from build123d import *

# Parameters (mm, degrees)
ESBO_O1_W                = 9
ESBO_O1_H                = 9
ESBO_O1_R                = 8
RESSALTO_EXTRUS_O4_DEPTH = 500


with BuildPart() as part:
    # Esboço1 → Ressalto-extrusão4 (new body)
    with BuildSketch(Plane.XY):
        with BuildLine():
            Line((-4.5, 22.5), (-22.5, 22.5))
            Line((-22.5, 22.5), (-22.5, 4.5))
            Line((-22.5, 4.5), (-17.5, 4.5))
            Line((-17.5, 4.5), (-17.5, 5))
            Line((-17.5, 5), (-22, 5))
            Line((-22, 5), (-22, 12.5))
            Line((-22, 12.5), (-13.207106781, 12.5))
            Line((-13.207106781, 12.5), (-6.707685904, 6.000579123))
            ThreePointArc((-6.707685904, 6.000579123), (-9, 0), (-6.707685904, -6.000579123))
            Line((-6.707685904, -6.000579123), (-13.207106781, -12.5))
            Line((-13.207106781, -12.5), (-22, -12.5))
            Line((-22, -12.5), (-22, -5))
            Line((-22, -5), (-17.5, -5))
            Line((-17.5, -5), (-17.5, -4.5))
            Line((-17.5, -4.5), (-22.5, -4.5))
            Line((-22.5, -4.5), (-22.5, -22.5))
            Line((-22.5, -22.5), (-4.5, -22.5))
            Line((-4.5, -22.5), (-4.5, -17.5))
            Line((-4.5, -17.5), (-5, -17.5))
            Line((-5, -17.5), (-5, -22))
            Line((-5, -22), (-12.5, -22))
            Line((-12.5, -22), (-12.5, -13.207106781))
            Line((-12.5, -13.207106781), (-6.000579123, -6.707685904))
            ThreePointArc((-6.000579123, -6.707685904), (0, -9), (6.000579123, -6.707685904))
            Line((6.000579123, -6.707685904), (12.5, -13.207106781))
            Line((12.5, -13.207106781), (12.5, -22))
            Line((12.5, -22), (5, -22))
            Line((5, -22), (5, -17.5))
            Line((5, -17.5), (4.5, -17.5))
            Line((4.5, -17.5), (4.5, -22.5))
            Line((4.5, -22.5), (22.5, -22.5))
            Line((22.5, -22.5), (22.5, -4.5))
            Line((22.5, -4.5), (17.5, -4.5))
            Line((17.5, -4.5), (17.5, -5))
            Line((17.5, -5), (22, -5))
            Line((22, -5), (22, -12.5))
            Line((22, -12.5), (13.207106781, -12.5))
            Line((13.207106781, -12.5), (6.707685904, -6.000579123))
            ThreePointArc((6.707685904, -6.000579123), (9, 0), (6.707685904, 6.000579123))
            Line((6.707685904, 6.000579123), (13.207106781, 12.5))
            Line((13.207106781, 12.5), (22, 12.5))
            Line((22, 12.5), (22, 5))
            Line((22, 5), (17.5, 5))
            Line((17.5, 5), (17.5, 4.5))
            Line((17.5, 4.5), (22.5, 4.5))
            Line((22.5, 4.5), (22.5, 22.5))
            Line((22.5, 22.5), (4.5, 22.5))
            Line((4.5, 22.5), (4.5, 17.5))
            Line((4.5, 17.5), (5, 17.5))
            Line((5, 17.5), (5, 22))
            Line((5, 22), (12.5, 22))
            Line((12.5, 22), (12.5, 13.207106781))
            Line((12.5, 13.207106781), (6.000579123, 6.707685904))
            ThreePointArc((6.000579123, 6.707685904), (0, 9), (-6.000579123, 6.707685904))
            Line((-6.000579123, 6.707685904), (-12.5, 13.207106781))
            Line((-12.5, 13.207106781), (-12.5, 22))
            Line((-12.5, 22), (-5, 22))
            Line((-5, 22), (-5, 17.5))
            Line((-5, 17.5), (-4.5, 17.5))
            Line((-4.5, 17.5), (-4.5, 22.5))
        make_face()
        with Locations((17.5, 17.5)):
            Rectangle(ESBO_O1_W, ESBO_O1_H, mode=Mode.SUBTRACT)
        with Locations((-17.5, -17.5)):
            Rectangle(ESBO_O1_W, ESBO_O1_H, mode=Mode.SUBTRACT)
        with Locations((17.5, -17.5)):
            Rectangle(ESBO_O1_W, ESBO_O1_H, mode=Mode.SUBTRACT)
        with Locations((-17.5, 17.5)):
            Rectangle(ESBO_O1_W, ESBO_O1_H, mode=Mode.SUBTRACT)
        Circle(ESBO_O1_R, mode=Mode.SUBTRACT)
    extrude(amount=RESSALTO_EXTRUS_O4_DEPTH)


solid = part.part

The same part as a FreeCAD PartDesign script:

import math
import FreeCAD as App
import Part
import Sketcher
from FreeCAD import Vector

doc = App.newDocument("Part")
params = doc.addObject("Spreadsheet::Sheet", "Params")
for row, (alias, value) in enumerate([
    ("sketch1_diameter", "16 mm"),
    ("sketch1_radius", "9 mm"),
    ("sketch1_width", "18 mm"),
    ("sketch1_width2", "5 mm"),
    ("sketch1_width3", "9 mm"),
    ("pad1_length", "500 mm"),
], start=1):
    params.set(f"A{row}", alias)
    params.set(f"B{row}", "=" + value)
    params.setAlias(f"B{row}", alias)

body = doc.addObject("PartDesign::Body", "Body")

# Sketch on XY plane
sketch1 = doc.addObject("Sketcher::SketchObject", "Sketch")
body.addObject(sketch1)
sketch1.AttachmentSupport = (doc.XY_Plane, [""])
sketch1.MapMode = "FlatFace"
sketch1.addGeometry(Part.LineSegment(Vector(-4.5, 22.5, 0), Vector(-22.5, 22.5, 0)), False)
sketch1.addGeometry(Part.LineSegment(Vector(-22.5, 22.5, 0), Vector(-22.5, 4.5, 0)), False)
sketch1.addGeometry(Part.LineSegment(Vector(-22.5, 4.5, 0), Vector(-17.5, 4.5, 0)), False)
sketch1.addGeometry(Part.LineSegment(Vector(-17.5, 4.5, 0), Vector(-17.5, 5, 0)), False)
sketch1.addGeometry(Part.LineSegment(Vector(-17.5, 5, 0), Vector(-22, 5, 0)), False)
sketch1.addGeometry(Part.LineSegment(Vector(-22, 5, 0), Vector(-22, 12.5, 0)), False)
sketch1.addGeometry(Part.LineSegment(Vector(-22, 12.5, 0), Vector(-13.2, 12.5, 0)), False)
sketch1.addGeometry(Part.LineSegment(Vector(-13.2, 12.5, 0), Vector(-6.7, 6, 0)), False)
sketch1.addGeometry(Part.ArcOfCircle(Part.Circle(Vector(0, 0, 0), Vector(0, 0, 1), 9), math.radians(138), math.radians(222)), False)
sketch1.addGeometry(Part.LineSegment(Vector(-6.7, -6, 0), Vector(-13.2, -12.5, 0)), False)
sketch1.addGeometry(Part.LineSegment(Vector(-13.2, -12.5, 0), Vector(-22, -12.5, 0)), False)
sketch1.addGeometry(Part.LineSegment(Vector(-22, -12.5, 0), Vector(-22, -5, 0)), False)
sketch1.addGeometry(Part.LineSegment(Vector(-22, -5, 0), Vector(-17.5, -5, 0)), False)
sketch1.addGeometry(Part.LineSegment(Vector(-17.5, -5, 0), Vector(-17.5, -4.5, 0)), False)
sketch1.addGeometry(Part.LineSegment(Vector(-17.5, -4.5, 0), Vector(-22.5, -4.5, 0)), False)
sketch1.addGeometry(Part.LineSegment(Vector(-22.5, -4.5, 0), Vector(-22.5, -22.5, 0)), False)
sketch1.addGeometry(Part.LineSegment(Vector(-22.5, -22.5, 0), Vector(-4.5, -22.5, 0)), False)
sketch1.addGeometry(Part.LineSegment(Vector(-4.5, -22.5, 0), Vector(-4.5, -17.5, 0)), False)
sketch1.addGeometry(Part.LineSegment(Vector(-4.5, -17.5, 0), Vector(-5, -17.5, 0)), False)
sketch1.addGeometry(Part.LineSegment(Vector(-5, -17.5, 0), Vector(-5, -22, 0)), False)
sketch1.addGeometry(Part.LineSegment(Vector(-5, -22, 0), Vector(-12.5, -22, 0)), False)
sketch1.addGeometry(Part.LineSegment(Vector(-12.5, -22, 0), Vector(-12.5, -13.2, 0)), False)
sketch1.addGeometry(Part.LineSegment(Vector(-12.5, -13.2, 0), Vector(-6, -6.7, 0)), False)
sketch1.addGeometry(Part.ArcOfCircle(Part.Circle(Vector(0, 0, 0), Vector(0, 0, 1), 9), math.radians(-132), math.radians(-48)), False)
sketch1.addGeometry(Part.LineSegment(Vector(6, -6.7, 0), Vector(12.5, -13.2, 0)), False)
sketch1.addGeometry(Part.LineSegment(Vector(12.5, -13.2, 0), Vector(12.5, -22, 0)), False)
sketch1.addGeometry(Part.LineSegment(Vector(12.5, -22, 0), Vector(5, -22, 0)), False)
sketch1.addGeometry(Part.LineSegment(Vector(5, -22, 0), Vector(5, -17.5, 0)), False)
sketch1.addGeometry(Part.LineSegment(Vector(5, -17.5, 0), Vector(4.5, -17.5, 0)), False)
sketch1.addGeometry(Part.LineSegment(Vector(4.5, -17.5, 0), Vector(4.5, -22.5, 0)), False)
sketch1.addGeometry(Part.LineSegment(Vector(4.5, -22.5, 0), Vector(22.5, -22.5, 0)), False)
sketch1.addGeometry(Part.LineSegment(Vector(22.5, -22.5, 0), Vector(22.5, -4.5, 0)), False)
sketch1.addGeometry(Part.LineSegment(Vector(22.5, -4.5, 0), Vector(17.5, -4.5, 0)), False)
sketch1.addGeometry(Part.LineSegment(Vector(17.5, -4.5, 0), Vector(17.5, -5, 0)), False)
sketch1.addGeometry(Part.LineSegment(Vector(17.5, -5, 0), Vector(22, -5, 0)), False)
sketch1.addGeometry(Part.LineSegment(Vector(22, -5, 0), Vector(22, -12.5, 0)), False)
sketch1.addGeometry(Part.LineSegment(Vector(22, -12.5, 0), Vector(13.2, -12.5, 0)), False)
sketch1.addGeometry(Part.LineSegment(Vector(13.2, -12.5, 0), Vector(6.7, -6, 0)), False)
sketch1.addGeometry(Part.ArcOfCircle(Part.Circle(Vector(0, 0, 0), Vector(0, 0, 1), 9), math.radians(-42), math.radians(42)), False)
sketch1.addGeometry(Part.LineSegment(Vector(6.7, 6, 0), Vector(13.2, 12.5, 0)), False)
sketch1.addGeometry(Part.LineSegment(Vector(13.2, 12.5, 0), Vector(22, 12.5, 0)), False)
sketch1.addGeometry(Part.LineSegment(Vector(22, 12.5, 0), Vector(22, 5, 0)), False)
sketch1.addGeometry(Part.LineSegment(Vector(22, 5, 0), Vector(17.5, 5, 0)), False)
sketch1.addGeometry(Part.LineSegment(Vector(17.5, 5, 0), Vector(17.5, 4.5, 0)), False)
sketch1.addGeometry(Part.LineSegment(Vector(17.5, 4.5, 0), Vector(22.5, 4.5, 0)), False)
sketch1.addGeometry(Part.LineSegment(Vector(22.5, 4.5, 0), Vector(22.5, 22.5, 0)), False)
sketch1.addGeometry(Part.LineSegment(Vector(22.5, 22.5, 0), Vector(4.5, 22.5, 0)), False)
sketch1.addGeometry(Part.LineSegment(Vector(4.5, 22.5, 0), Vector(4.5, 17.5, 0)), False)
sketch1.addGeometry(Part.LineSegment(Vector(4.5, 17.5, 0), Vector(5, 17.5, 0)), False)
sketch1.addGeometry(Part.LineSegment(Vector(5, 17.5, 0), Vector(5, 22, 0)), False)
sketch1.addGeometry(Part.LineSegment(Vector(5, 22, 0), Vector(12.5, 22, 0)), False)
sketch1.addGeometry(Part.LineSegment(Vector(12.5, 22, 0), Vector(12.5, 13.2, 0)), False)
sketch1.addGeometry(Part.LineSegment(Vector(12.5, 13.2, 0), Vector(6, 6.7, 0)), False)
sketch1.addGeometry(Part.ArcOfCircle(Part.Circle(Vector(0, 0, 0), Vector(0, 0, 1), 9), math.radians(48), math.radians(132)), False)
sketch1.addGeometry(Part.LineSegment(Vector(-6, 6.7, 0), Vector(-12.5, 13.2, 0)), False)
sketch1.addGeometry(Part.LineSegment(Vector(-12.5, 13.2, 0), Vector(-12.5, 22, 0)), False)
sketch1.addGeometry(Part.LineSegment(Vector(-12.5, 22, 0), Vector(-5, 22, 0)), False)
sketch1.addGeometry(Part.LineSegment(Vector(-5, 22, 0), Vector(-5, 17.5, 0)), False)
sketch1.addGeometry(Part.LineSegment(Vector(-5, 17.5, 0), Vector(-4.5, 17.5, 0)), False)
sketch1.addGeometry(Part.LineSegment(Vector(-4.5, 17.5, 0), Vector(-4.5, 22.5, 0)), False)
sketch1.addGeometry(Part.LineSegment(Vector(-13, -22, 0), Vector(-22, -22, 0)), False)
sketch1.addGeometry(Part.LineSegment(Vector(-22, -22, 0), Vector(-22, -13, 0)), False)
sketch1.addGeometry(Part.LineSegment(Vector(-22, -13, 0), Vector(-13, -13, 0)), False)
sketch1.addGeometry(Part.LineSegment(Vector(-13, -13, 0), Vector(-13, -22, 0)), False)
sketch1.addGeometry(Part.LineSegment(Vector(22, -22, 0), Vector(13, -22, 0)), False)
sketch1.addGeometry(Part.LineSegment(Vector(13, -22, 0), Vector(13, -13, 0)), False)
sketch1.addGeometry(Part.LineSegment(Vector(13, -13, 0), Vector(22, -13, 0)), False)
sketch1.addGeometry(Part.LineSegment(Vector(22, -13, 0), Vector(22, -22, 0)), False)
sketch1.addGeometry(Part.LineSegment(Vector(-13, 13, 0), Vector(-22, 13, 0)), False)
sketch1.addGeometry(Part.LineSegment(Vector(-22, 13, 0), Vector(-22, 22, 0)), False)
sketch1.addGeometry(Part.LineSegment(Vector(-22, 22, 0), Vector(-13, 22, 0)), False)
sketch1.addGeometry(Part.LineSegment(Vector(-13, 22, 0), Vector(-13, 13, 0)), False)
sketch1.addGeometry(Part.Circle(Vector(0, 0, 0), Vector(0, 0, 1), 8), False)
sketch1.addGeometry(Part.LineSegment(Vector(22, 13, 0), Vector(13, 13, 0)), False)
sketch1.addGeometry(Part.LineSegment(Vector(13, 13, 0), Vector(13, 22, 0)), False)
sketch1.addGeometry(Part.LineSegment(Vector(13, 22, 0), Vector(22, 22, 0)), False)
sketch1.addGeometry(Part.LineSegment(Vector(22, 22, 0), Vector(22, 13, 0)), False)
sketch1.addConstraint(Sketcher.Constraint("Coincident", 0, 2, 1, 1))
sketch1.addConstraint(Sketcher.Constraint("Coincident", 1, 2, 2, 1))
sketch1.addConstraint(Sketcher.Constraint("Coincident", 2, 2, 3, 1))
sketch1.addConstraint(Sketcher.Constraint("Coincident", 3, 2, 4, 1))
sketch1.addConstraint(Sketcher.Constraint("Coincident", 4, 2, 5, 1))
sketch1.addConstraint(Sketcher.Constraint("Coincident", 5, 2, 6, 1))
sketch1.addConstraint(Sketcher.Constraint("Coincident", 6, 2, 7, 1))
sketch1.addConstraint(Sketcher.Constraint("Coincident", 7, 2, 8, 1))
sketch1.addConstraint(Sketcher.Constraint("Coincident", 8, 2, 9, 1))
sketch1.addConstraint(Sketcher.Constraint("Coincident", 9, 2, 10, 1))
sketch1.addConstraint(Sketcher.Constraint("Coincident", 10, 2, 11, 1))
sketch1.addConstraint(Sketcher.Constraint("Coincident", 11, 2, 12, 1))
sketch1.addConstraint(Sketcher.Constraint("Coincident", 12, 2, 13, 1))
sketch1.addConstraint(Sketcher.Constraint("Coincident", 13, 2, 14, 1))
sketch1.addConstraint(Sketcher.Constraint("Coincident", 14, 2, 15, 1))
sketch1.addConstraint(Sketcher.Constraint("Coincident", 15, 2, 16, 1))
sketch1.addConstraint(Sketcher.Constraint("Coincident", 16, 2, 17, 1))
sketch1.addConstraint(Sketcher.Constraint("Coincident", 17, 2, 18, 1))
sketch1.addConstraint(Sketcher.Constraint("Coincident", 18, 2, 19, 1))
sketch1.addConstraint(Sketcher.Constraint("Coincident", 19, 2, 20, 1))
sketch1.addConstraint(Sketcher.Constraint("Coincident", 20, 2, 21, 1))
sketch1.addConstraint(Sketcher.Constraint("Coincident", 21, 2, 22, 1))
sketch1.addConstraint(Sketcher.Constraint("Coincident", 22, 2, 23, 1))
sketch1.addConstraint(Sketcher.Constraint("Coincident", 23, 2, 24, 1))
sketch1.addConstraint(Sketcher.Constraint("Coincident", 24, 2, 25, 1))
sketch1.addConstraint(Sketcher.Constraint("Coincident", 25, 2, 26, 1))
sketch1.addConstraint(Sketcher.Constraint("Coincident", 26, 2, 27, 1))
sketch1.addConstraint(Sketcher.Constraint("Coincident", 27, 2, 28, 1))
sketch1.addConstraint(Sketcher.Constraint("Coincident", 28, 2, 29, 1))
sketch1.addConstraint(Sketcher.Constraint("Coincident", 29, 2, 30, 1))
sketch1.addConstraint(Sketcher.Constraint("Coincident", 30, 2, 31, 1))
sketch1.addConstraint(Sketcher.Constraint("Coincident", 31, 2, 32, 1))
sketch1.addConstraint(Sketcher.Constraint("Coincident", 32, 2, 33, 1))
sketch1.addConstraint(Sketcher.Constraint("Coincident", 33, 2, 34, 1))
sketch1.addConstraint(Sketcher.Constraint("Coincident", 34, 2, 35, 1))
sketch1.addConstraint(Sketcher.Constraint("Coincident", 35, 2, 36, 1))
sketch1.addConstraint(Sketcher.Constraint("Coincident", 36, 2, 37, 1))
sketch1.addConstraint(Sketcher.Constraint("Coincident", 37, 2, 38, 1))
sketch1.addConstraint(Sketcher.Constraint("Coincident", 38, 2, 39, 1))
sketch1.addConstraint(Sketcher.Constraint("Coincident", 39, 2, 40, 1))
sketch1.addConstraint(Sketcher.Constraint("Coincident", 40, 2, 41, 1))
sketch1.addConstraint(Sketcher.Constraint("Coincident", 41, 2, 42, 1))
sketch1.addConstraint(Sketcher.Constraint("Coincident", 42, 2, 43, 1))
sketch1.addConstraint(Sketcher.Constraint("Coincident", 43, 2, 44, 1))
sketch1.addConstraint(Sketcher.Constraint("Coincident", 44, 2, 45, 1))
sketch1.addConstraint(Sketcher.Constraint("Coincident", 45, 2, 46, 1))
sketch1.addConstraint(Sketcher.Constraint("Coincident", 46, 2, 47, 1))
sketch1.addConstraint(Sketcher.Constraint("Coincident", 47, 2, 48, 1))
sketch1.addConstraint(Sketcher.Constraint("Coincident", 48, 2, 49, 1))
sketch1.addConstraint(Sketcher.Constraint("Coincident", 49, 2, 50, 1))
sketch1.addConstraint(Sketcher.Constraint("Coincident", 50, 2, 51, 1))
sketch1.addConstraint(Sketcher.Constraint("Coincident", 51, 2, 52, 1))
sketch1.addConstraint(Sketcher.Constraint("Coincident", 52, 2, 53, 1))
sketch1.addConstraint(Sketcher.Constraint("Coincident", 53, 2, 54, 1))
sketch1.addConstraint(Sketcher.Constraint("Coincident", 54, 2, 55, 1))
sketch1.addConstraint(Sketcher.Constraint("Coincident", 55, 2, 56, 1))
sketch1.addConstraint(Sketcher.Constraint("Coincident", 56, 2, 57, 1))
sketch1.addConstraint(Sketcher.Constraint("Coincident", 57, 2, 58, 1))
sketch1.addConstraint(Sketcher.Constraint("Coincident", 58, 2, 59, 1))
sketch1.addConstraint(Sketcher.Constraint("Coincident", 59, 2, 0, 1))
sketch1.addConstraint(Sketcher.Constraint("Coincident", 60, 2, 61, 1))
sketch1.addConstraint(Sketcher.Constraint("Coincident", 61, 2, 62, 1))
sketch1.addConstraint(Sketcher.Constraint("Coincident", 62, 2, 63, 1))
sketch1.addConstraint(Sketcher.Constraint("Coincident", 63, 2, 60, 1))
sketch1.addConstraint(Sketcher.Constraint("Coincident", 64, 2, 65, 1))
sketch1.addConstraint(Sketcher.Constraint("Coincident", 65, 2, 66, 1))
sketch1.addConstraint(Sketcher.Constraint("Coincident", 66, 2, 67, 1))
sketch1.addConstraint(Sketcher.Constraint("Coincident", 67, 2, 64, 1))
sketch1.addConstraint(Sketcher.Constraint("Coincident", 68, 2, 69, 1))
sketch1.addConstraint(Sketcher.Constraint("Coincident", 69, 2, 70, 1))
sketch1.addConstraint(Sketcher.Constraint("Coincident", 70, 2, 71, 1))
sketch1.addConstraint(Sketcher.Constraint("Coincident", 71, 2, 68, 1))
sketch1.addConstraint(Sketcher.Constraint("Coincident", 73, 2, 74, 1))
sketch1.addConstraint(Sketcher.Constraint("Coincident", 74, 2, 75, 1))
sketch1.addConstraint(Sketcher.Constraint("Coincident", 75, 2, 76, 1))
sketch1.addConstraint(Sketcher.Constraint("Coincident", 76, 2, 73, 1))
sketch1.addConstraint(Sketcher.Constraint("Horizontal", 0))
sketch1.addConstraint(Sketcher.Constraint("Vertical", 1))
sketch1.addConstraint(Sketcher.Constraint("Horizontal", 2))
sketch1.addConstraint(Sketcher.Constraint("Vertical", 3))
sketch1.addConstraint(Sketcher.Constraint("Horizontal", 4))
sketch1.addConstraint(Sketcher.Constraint("Vertical", 5))
sketch1.addConstraint(Sketcher.Constraint("Horizontal", 6))
sketch1.addConstraint(Sketcher.Constraint("Horizontal", 10))
sketch1.addConstraint(Sketcher.Constraint("Vertical", 11))
sketch1.addConstraint(Sketcher.Constraint("Horizontal", 12))
sketch1.addConstraint(Sketcher.Constraint("Vertical", 13))
sketch1.addConstraint(Sketcher.Constraint("Horizontal", 14))
sketch1.addConstraint(Sketcher.Constraint("Vertical", 15))
sketch1.addConstraint(Sketcher.Constraint("Horizontal", 16))
sketch1.addConstraint(Sketcher.Constraint("Vertical", 17))
sketch1.addConstraint(Sketcher.Constraint("Horizontal", 18))
sketch1.addConstraint(Sketcher.Constraint("Vertical", 19))
sketch1.addConstraint(Sketcher.Constraint("Horizontal", 20))
sketch1.addConstraint(Sketcher.Constraint("Vertical", 21))
sketch1.addConstraint(Sketcher.Constraint("Vertical", 25))
sketch1.addConstraint(Sketcher.Constraint("Horizontal", 26))
sketch1.addConstraint(Sketcher.Constraint("Vertical", 27))
sketch1.addConstraint(Sketcher.Constraint("Horizontal", 28))
sketch1.addConstraint(Sketcher.Constraint("Vertical", 29))
sketch1.addConstraint(Sketcher.Constraint("Horizontal", 30))
sketch1.addConstraint(Sketcher.Constraint("Vertical", 31))
sketch1.addConstraint(Sketcher.Constraint("Horizontal", 32))
sketch1.addConstraint(Sketcher.Constraint("Vertical", 33))
sketch1.addConstraint(Sketcher.Constraint("Horizontal", 34))
sketch1.addConstraint(Sketcher.Constraint("Vertical", 35))
sketch1.addConstraint(Sketcher.Constraint("Horizontal", 36))
sketch1.addConstraint(Sketcher.Constraint("Horizontal", 40))
sketch1.addConstraint(Sketcher.Constraint("Vertical", 41))
sketch1.addConstraint(Sketcher.Constraint("Horizontal", 42))
sketch1.addConstraint(Sketcher.Constraint("Vertical", 43))
sketch1.addConstraint(Sketcher.Constraint("Horizontal", 44))
sketch1.addConstraint(Sketcher.Constraint("Vertical", 45))
sketch1.addConstraint(Sketcher.Constraint("Horizontal", 46))
sketch1.addConstraint(Sketcher.Constraint("Vertical", 47))
sketch1.addConstraint(Sketcher.Constraint("Horizontal", 48))
sketch1.addConstraint(Sketcher.Constraint("Vertical", 49))
sketch1.addConstraint(Sketcher.Constraint("Horizontal", 50))
sketch1.addConstraint(Sketcher.Constraint("Vertical", 51))
sketch1.addConstraint(Sketcher.Constraint("Vertical", 55))
sketch1.addConstraint(Sketcher.Constraint("Horizontal", 56))
sketch1.addConstraint(Sketcher.Constraint("Vertical", 57))
sketch1.addConstraint(Sketcher.Constraint("Horizontal", 58))
sketch1.addConstraint(Sketcher.Constraint("Vertical", 59))
sketch1.addConstraint(Sketcher.Constraint("Horizontal", 60))
sketch1.addConstraint(Sketcher.Constraint("Vertical", 61))
sketch1.addConstraint(Sketcher.Constraint("Horizontal", 62))
sketch1.addConstraint(Sketcher.Constraint("Vertical", 63))
sketch1.addConstraint(Sketcher.Constraint("Horizontal", 64))
sketch1.addConstraint(Sketcher.Constraint("Vertical", 65))
sketch1.addConstraint(Sketcher.Constraint("Horizontal", 66))
sketch1.addConstraint(Sketcher.Constraint("Vertical", 67))
sketch1.addConstraint(Sketcher.Constraint("Horizontal", 68))
sketch1.addConstraint(Sketcher.Constraint("Vertical", 69))
sketch1.addConstraint(Sketcher.Constraint("Horizontal", 70))
sketch1.addConstraint(Sketcher.Constraint("Vertical", 71))
sketch1.addConstraint(Sketcher.Constraint("Horizontal", 73))
sketch1.addConstraint(Sketcher.Constraint("Vertical", 74))
sketch1.addConstraint(Sketcher.Constraint("Horizontal", 75))
sketch1.addConstraint(Sketcher.Constraint("Vertical", 76))
sketch1.addConstraint(Sketcher.Constraint("Coincident", 8, 3, -1, 1))
sketch1.addConstraint(Sketcher.Constraint("Coincident", 23, 3, -1, 1))
sketch1.addConstraint(Sketcher.Constraint("Coincident", 38, 3, -1, 1))
sketch1.addConstraint(Sketcher.Constraint("Coincident", 53, 3, -1, 1))
sketch1.addConstraint(Sketcher.Constraint("Coincident", 72, 3, -1, 1))
sketch1.addConstraint(Sketcher.Constraint("Equal", 8, 23))
sketch1.addConstraint(Sketcher.Constraint("Equal", 23, 38))
sketch1.addConstraint(Sketcher.Constraint("Equal", 38, 53))
sketch1.addConstraint(Sketcher.Constraint("Symmetric", 0, 2, 30, 2, -1, 1))
sketch1.addConstraint(Sketcher.Constraint("Symmetric", 2, 2, 32, 2, -1, 1))
sketch1.addConstraint(Sketcher.Constraint("Symmetric", 4, 2, 34, 2, -1, 1))
sketch1.addConstraint(Sketcher.Constraint("Symmetric", 6, 2, 36, 2, -1, 1))
sketch1.addConstraint(Sketcher.Constraint("Symmetric", 9, 2, 39, 2, -1, 1))
sketch1.addConstraint(Sketcher.Constraint("Symmetric", 11, 2, 41, 2, -1, 1))
sketch1.addConstraint(Sketcher.Constraint("Symmetric", 13, 2, 43, 2, -1, 1))
sketch1.addConstraint(Sketcher.Constraint("Symmetric", 15, 2, 45, 2, -1, 1))
sketch1.addConstraint(Sketcher.Constraint("Symmetric", 17, 2, 47, 2, -1, 1))
sketch1.addConstraint(Sketcher.Constraint("Symmetric", 19, 2, 49, 2, -1, 1))
sketch1.addConstraint(Sketcher.Constraint("Symmetric", 21, 2, 51, 2, -1, 1))
sketch1.addConstraint(Sketcher.Constraint("Symmetric", 24, 2, 54, 2, -1, 1))
sketch1.addConstraint(Sketcher.Constraint("Symmetric", 26, 2, 56, 2, -1, 1))
sketch1.addConstraint(Sketcher.Constraint("Symmetric", 28, 2, 58, 2, -1, 1))
sketch1.addConstraint(Sketcher.Constraint("Symmetric", 66, 2, 68, 2, -1, 1))
sketch1.addConstraint(Sketcher.Constraint("Symmetric", 64, 2, 70, 2, -1, 1))
sketch1.addConstraint(Sketcher.Constraint("Symmetric", 62, 2, 73, 2, -1, 1))
sketch1.addConstraint(Sketcher.Constraint("Symmetric", 60, 2, 75, 2, -1, 1))
sketch1.addConstraint(Sketcher.Constraint("Symmetric", 21, 2, 24, 2, -2))
sketch1.addConstraint(Sketcher.Constraint("Symmetric", 19, 2, 26, 2, -2))
sketch1.addConstraint(Sketcher.Constraint("Symmetric", 17, 2, 28, 2, -2))
sketch1.addConstraint(Sketcher.Constraint("Symmetric", 15, 2, 30, 2, -2))
sketch1.addConstraint(Sketcher.Constraint("Symmetric", 13, 2, 32, 2, -2))
sketch1.addConstraint(Sketcher.Constraint("Symmetric", 11, 2, 34, 2, -2))
sketch1.addConstraint(Sketcher.Constraint("Symmetric", 9, 2, 36, 2, -2))
sketch1.addConstraint(Sketcher.Constraint("Symmetric", 63, 2, 64, 2, -2))
sketch1.addConstraint(Sketcher.Constraint("Symmetric", 61, 2, 66, 2, -2))
sketch1.addConstraint(Sketcher.Constraint("Perpendicular", 7, 9))
sketch1.addConstraint(Sketcher.Constraint("Parallel", 9, 22))
sketch1.addConstraint(Sketcher.Constraint("Perpendicular", 22, 24))
sketch1.addConstraint(Sketcher.Constraint("Parallel", 24, 37))
sketch1.addConstraint(Sketcher.Constraint("Perpendicular", 37, 39))
sketch1.addConstraint(Sketcher.Constraint("Parallel", 39, 52))
sketch1.addConstraint(Sketcher.Constraint("Perpendicular", 52, 54))
sketch1.addConstraint(Sketcher.Constraint("Horizontal", 22, 2, 23, 2))
sketch1.addConstraint(Sketcher.Constraint("Horizontal", 26, 2, 60, 2))
sketch1.addConstraint(Sketcher.Constraint("Vertical", 11, 2, 60, 2))
sketch1.addConstraint(Sketcher.Constraint("Equal", 46, 1))
sketch1.addConstraint(Sketcher.Constraint("Equal", 58, 3))
sketch1.addConstraint(Sketcher.Constraint("Equal", 56, 5))
sketch1.addConstraint(Sketcher.Constraint("Equal", 44, 17))
sketch1.addConstraint(Sketcher.Constraint("Equal", 42, 19))
sketch1.addConstraint(Sketcher.Constraint("Equal", 40, 21))
sketch1.addConstraint(Sketcher.Constraint("Equal", 75, 61))
sketch1.addConstraint(Sketcher.Constraint("Equal", 9, 22))
sketch1.addConstraint(Sketcher.Constraint("Diameter", 72, 16.0))
sketch1.addConstraint(Sketcher.Constraint("Radius", 8, 9.0))
sketch1.addConstraint(Sketcher.Constraint("DistanceX", 0, 2, 0, 1, 18.0))
sketch1.addConstraint(Sketcher.Constraint("DistanceX", 2, 1, 2, 2, 5.0))
sketch1.addConstraint(Sketcher.Constraint("DistanceX", 60, 2, 60, 1, 9.0))
sketch1.addConstraint(Sketcher.Constraint("DistanceX", 4, 2, 4, 1, 4.5))
sketch1.addConstraint(Sketcher.Constraint("DistanceX", 18, 2, 18, 1, 0.5))
sketch1.addConstraint(Sketcher.Constraint("DistanceX", 20, 2, 20, 1, 7.5))
sketch1.addConstraint(Sketcher.Constraint("DistanceY", -1, 1, 3, 2, 5.0))
sketch1.addConstraint(Sketcher.Constraint("Distance", 7, 9.191569))
sketch1.setExpression("Constraints[193]", "Params.sketch1_diameter")
sketch1.setExpression("Constraints[194]", "Params.sketch1_radius")
sketch1.setExpression("Constraints[195]", "Params.sketch1_width")
sketch1.setExpression("Constraints[196]", "Params.sketch1_width2")
sketch1.setExpression("Constraints[197]", "Params.sketch1_width3")
pad1 = doc.addObject("PartDesign::Pad", "Pad")
body.addObject(pad1)
pad1.Profile = sketch1
pad1.setExpression("Length", "Params.pad1_length")

doc.recompute()
